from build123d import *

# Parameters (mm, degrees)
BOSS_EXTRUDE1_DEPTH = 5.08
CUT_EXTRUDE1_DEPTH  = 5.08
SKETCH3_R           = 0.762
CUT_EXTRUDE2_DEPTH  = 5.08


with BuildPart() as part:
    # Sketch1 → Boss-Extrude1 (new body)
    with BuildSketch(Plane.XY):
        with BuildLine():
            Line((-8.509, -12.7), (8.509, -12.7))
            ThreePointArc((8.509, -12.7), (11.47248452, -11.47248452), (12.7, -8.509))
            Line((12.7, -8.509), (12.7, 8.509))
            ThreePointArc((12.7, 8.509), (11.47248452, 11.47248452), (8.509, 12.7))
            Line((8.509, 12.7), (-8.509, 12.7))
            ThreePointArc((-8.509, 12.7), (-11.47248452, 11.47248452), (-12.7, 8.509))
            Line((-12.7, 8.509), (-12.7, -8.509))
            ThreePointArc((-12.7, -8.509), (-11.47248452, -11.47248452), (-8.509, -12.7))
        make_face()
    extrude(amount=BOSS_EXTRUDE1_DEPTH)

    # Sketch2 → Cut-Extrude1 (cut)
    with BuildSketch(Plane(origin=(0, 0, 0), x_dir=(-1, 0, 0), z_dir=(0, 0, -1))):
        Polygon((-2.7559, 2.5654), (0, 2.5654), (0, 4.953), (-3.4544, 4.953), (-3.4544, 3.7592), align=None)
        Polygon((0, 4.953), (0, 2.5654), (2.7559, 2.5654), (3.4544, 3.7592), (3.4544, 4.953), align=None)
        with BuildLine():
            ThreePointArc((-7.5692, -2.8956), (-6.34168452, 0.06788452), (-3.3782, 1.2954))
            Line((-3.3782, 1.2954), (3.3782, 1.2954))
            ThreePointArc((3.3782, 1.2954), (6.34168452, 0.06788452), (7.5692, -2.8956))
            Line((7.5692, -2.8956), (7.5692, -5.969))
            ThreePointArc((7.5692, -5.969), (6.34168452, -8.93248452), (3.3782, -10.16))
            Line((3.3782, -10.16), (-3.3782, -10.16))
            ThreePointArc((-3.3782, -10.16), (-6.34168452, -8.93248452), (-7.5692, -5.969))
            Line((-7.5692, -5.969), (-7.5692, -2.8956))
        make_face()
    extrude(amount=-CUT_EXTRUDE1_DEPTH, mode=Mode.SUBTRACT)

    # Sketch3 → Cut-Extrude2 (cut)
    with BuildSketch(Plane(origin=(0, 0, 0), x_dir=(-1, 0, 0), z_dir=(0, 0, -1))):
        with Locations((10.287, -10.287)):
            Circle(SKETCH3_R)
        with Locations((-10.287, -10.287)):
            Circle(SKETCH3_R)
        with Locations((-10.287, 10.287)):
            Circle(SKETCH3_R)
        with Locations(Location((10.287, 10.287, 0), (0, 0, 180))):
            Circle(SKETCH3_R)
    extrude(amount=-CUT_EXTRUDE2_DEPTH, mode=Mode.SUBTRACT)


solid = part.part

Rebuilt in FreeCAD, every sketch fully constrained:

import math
import FreeCAD as App
import Part
import Sketcher

V = App.Vector
Q = App.Units.Quantity

doc = App.newDocument("Part")
params = doc.addObject("Spreadsheet::Sheet", "Params")
for row, (alias, value) in enumerate([
    ("sketch1_radius", "0.165 in"),
    ("sketch1_width", "0.67 in"),
    ("pad1_length", "0.2 in"),
    ("sketch2_radius", "0.165 in"),
    ("sketch2_width", "0.217 in"),
    ("sketch2_width2", "0.272 in"),
    ("sketch2_width3", "0.266 in"),
    ("sketch2_height", "0.047 in"),
    ("pocket1_length", "0.2 in"),
    ("sketch3_diameter", "0.06 in"),
    ("pocket2_length", "0.2 in"),
], start=1):
    params.set(f"A{row}", alias)
    params.set(f"B{row}", "=" + value)
    params.setAlias(f"B{row}", alias)

body = doc.addObject("PartDesign::Body", "Body")

# Sketch on XY plane
sketch1 = doc.addObject("Sketcher::SketchObject", "Sketch")
body.addObject(sketch1)
sketch1.AttachmentSupport = (doc.XY_Plane, [""])
sketch1.MapMode = "FlatFace"
sketch1.addGeometry([
    Part.LineSegment(V(-8.5, -12.7, 0), V(8.5, -12.7, 0)),  # 0
    Part.ArcOfCircle(Part.Circle(V(8.5, -8.5, 0), V(0, 0, 1), 4.2), math.radians(-90), math.radians(0)),  # 1
    Part.LineSegment(V(12.7, -8.5, 0), V(12.7, 8.5, 0)),  # 2
    Part.ArcOfCircle(Part.Circle(V(8.5, 8.5, 0), V(0, 0, 1), 4.2), math.radians(0), math.radians(90)),  # 3
    Part.LineSegment(V(8.5, 12.7, 0), V(-8.5, 12.7, 0)),  # 4
    Part.ArcOfCircle(Part.Circle(V(-8.5, 8.5, 0), V(0, 0, 1), 4.2), math.radians(90), math.radians(180)),  # 5
    Part.LineSegment(V(-12.7, 8.5, 0), V(-12.7, -8.5, 0)),  # 6
    Part.ArcOfCircle(Part.Circle(V(-8.5, -8.5, 0), V(0, 0, 1), 4.2), math.radians(180), math.radians(270)),  # 7
], False)
sketch1.addConstraint([
    Sketcher.Constraint("Tangent", 0, 2, 1, 1),
    Sketcher.Constraint("Tangent", 1, 2, 2, 1),
    Sketcher.Constraint("Tangent", 2, 2, 3, 1),
    Sketcher.Constraint("Tangent", 3, 2, 4, 1),
    Sketcher.Constraint("Tangent", 4, 2, 5, 1),
    Sketcher.Constraint("Tangent", 5, 2, 6, 1),
    Sketcher.Constraint("Tangent", 6, 2, 7, 1),
    Sketcher.Constraint("Tangent", 7, 2, 0, 1),
    Sketcher.Constraint("Horizontal", 0),
    Sketcher.Constraint("Vertical", 2),
    Sketcher.Constraint("Horizontal", 4),
    Sketcher.Constraint("Vertical", 6),
    Sketcher.Constraint("Equal", 1, 3),
    Sketcher.Constraint("Equal", 3, 5),
    Sketcher.Constraint("Equal", 5, 7),
    Sketcher.Constraint("Symmetric", 1, 3, 5, 3, -1, 1),
    Sketcher.Constraint("Equal", 4, 2),
    Sketcher.Constraint("Radius", 1, Q("0.165 in")),
    Sketcher.Constraint("DistanceX", 0, 1, 0, 2, Q("0.67 in")),
])
sketch1.setExpression("Constraints[17]", "Params.sketch1_radius")
sketch1.setExpression("Constraints[18]", "Params.sketch1_width")
pad1 = doc.addObject("PartDesign::Pad", "Pad")
body.addObject(pad1)
pad1.Profile = sketch1
pad1.setExpression("Length", "Params.pad1_length")

# Sketch on XY plane
sketch2 = doc.addObject("Sketcher::SketchObject", "Sketch001")
body.addObject(sketch2)
sketch2.AttachmentSupport = (doc.XY_Plane, [""])
sketch2.MapMode = "FlatFace"
sketch2.addGeometry([
    Part.LineSegment(V(2.8, 2.6, 0), V(-2.8, 2.6, 0)),  # 0
    Part.LineSegment(V(-2.8, 2.6, 0), V(-3.5, 3.8, 0)),  # 1
    Part.LineSegment(V(-3.5, 3.8, 0), V(-3.5, 5, 0)),  # 2
    Part.LineSegment(V(-3.5, 5, 0), V(3.5, 5, 0)),  # 3
    Part.LineSegment(V(3.5, 5, 0), V(3.5, 3.8, 0)),  # 4
    Part.LineSegment(V(3.5, 3.8, 0), V(2.8, 2.6, 0)),  # 5
    Part.ArcOfCircle(Part.Circle(V(3.4, -2.9, 0), V(0, 0, 1), 4.2), math.radians(0), math.radians(90)),  # 6
    Part.LineSegment(V(7.6, -2.9, 0), V(7.6, -6, 0)),  # 7
    Part.ArcOfCircle(Part.Circle(V(3.4, -6, 0), V(0, 0, 1), 4.2), math.radians(-90), math.radians(0)),  # 8
    Part.LineSegment(V(3.4, -10.2, 0), V(-3.4, -10.2, 0)),  # 9
    Part.ArcOfCircle(Part.Circle(V(-3.4, -6, 0), V(0, 0, 1), 4.2), math.radians(180), math.radians(270)),  # 10
    Part.LineSegment(V(-7.6, -6, 0), V(-7.6, -2.9, 0)),  # 11
    Part.ArcOfCircle(Part.Circle(V(-3.4, -2.9, 0), V(0, 0, 1), 4.2), math.radians(90), math.radians(180)),  # 12
    Part.LineSegment(V(-3.4, 1.3, 0), V(3.4, 1.3, 0)),  # 13
], False)
sketch2.addConstraint([
    Sketcher.Constraint("Coincident", 0, 2, 1, 1),
    Sketcher.Constraint("Coincident", 1, 2, 2, 1),
    Sketcher.Constraint("Coincident", 2, 2, 3, 1),
    Sketcher.Constraint("Coincident", 3, 2, 4, 1),
    Sketcher.Constraint("Coincident", 4, 2, 5, 1),
    Sketcher.Constraint("Coincident", 5, 2, 0, 1),
    Sketcher.Constraint("Tangent", 6, 1, 7, 1),
    Sketcher.Constraint("Tangent", 7, 2, 8, 2),
    Sketcher.Constraint("Tangent", 8, 1, 9, 1),
    Sketcher.Constraint("Tangent", 9, 2, 10, 2),
    Sketcher.Constraint("Tangent", 10, 1, 11, 1),
    Sketcher.Constraint("Tangent", 11, 2, 12, 2),
    Sketcher.Constraint("Tangent", 12, 1, 13, 1),
    Sketcher.Constraint("Tangent", 13, 2, 6, 2),
    Sketcher.Constraint("Horizontal", 0),
    Sketcher.Constraint("Vertical", 2),
    Sketcher.Constraint("Horizontal", 3),
    Sketcher.Constraint("Vertical", 4),
    Sketcher.Constraint("Vertical", 7),
    Sketcher.Constraint("Horizontal", 9),
    Sketcher.Constraint("Vertical", 11),
    Sketcher.Constraint("Horizontal", 13),
    Sketcher.Constraint("Equal", 6, 8),
    Sketcher.Constraint("Equal", 8, 10),
    Sketcher.Constraint("Equal", 10, 12),
    Sketcher.Constraint("Symmetric", 1, 2, 4, 2, -2),
    Sketcher.Constraint("Equal", 1, 5),
    Sketcher.Constraint("Radius", 6, Q("0.165 in")),
    Sketcher.Constraint("DistanceY", 8, 1, -1, 1, Q("0.4 in")),
    Sketcher.Constraint("DistanceX", 0, 2, 0, 1, Q("0.217 in")),
    Sketcher.Constraint("DistanceX", 3, 1, 3, 2, Q("0.272 in")),
    Sketcher.Constraint("DistanceX", 9, 2, 9, 1, Q("0.266 in")),
    Sketcher.Constraint("DistanceY", 2, 1, 2, 2, Q("0.047 in")),
    Sketcher.Constraint("DistanceY", 7, 2, 7, 1, Q("0.121 in")),
    Sketcher.Constraint("DistanceY", 10, 3, 2, 2, Q("0.43 in")),
    Sketcher.Constraint("DistanceY", 12, 1, 0, 2, Q("0.05 in")),
    Sketcher.Constraint("DistanceX", -1, 1, 6, 3, Q("0.133 in")),
])
sketch2.setExpression("Constraints[27]", "Params.sketch2_radius")
sketch2.setExpression("Constraints[29]", "Params.sketch2_width")
sketch2.setExpression("Constraints[30]", "Params.sketch2_width2")
sketch2.setExpression("Constraints[31]", "Params.sketch2_width3")
sketch2.setExpression("Constraints[32]", "Params.sketch2_height")
pocket1 = doc.addObject("PartDesign::Pocket", "Pocket")
body.addObject(pocket1)
pocket1.Profile = sketch2
pocket1.setExpression("Length", "Params.pocket1_length")
pocket1.Reversed = True

# Sketch on XY plane
sketch3 = doc.addObject("Sketcher::SketchObject", "Sketch002")
body.addObject(sketch3)
sketch3.AttachmentSupport = (doc.XY_Plane, [""])
sketch3.MapMode = "FlatFace"
sketch3.addGeometry([
    Part.Circle(V(-10.3, -10.3, 0), V(0, 0, 1), 0.8),
    Part.Circle(V(10.3, -10.3, 0), V(0, 0, 1), 0.8),
    Part.Circle(V(10.3, 10.3, 0), V(0, 0, 1), 0.8),
    Part.Circle(V(-10.3, 10.3, 0), V(0, 0, 1), 0.8),
], False)
sketch3.addConstraint([
    Sketcher.Constraint("Equal", 0, 1),
    Sketcher.Constraint("Equal", 1, 2),
    Sketcher.Constraint("Equal", 2, 3),
    Sketcher.Constraint("Symmetric", 0, 3, 2, 3, -1, 1),
    Sketcher.Constraint("Symmetric", 1, 3, 3, 3, -1, 1),
    Sketcher.Constraint("Symmetric", 0, 3, 1, 3, -2),
    Sketcher.Constraint("Diameter", 0, Q("0.06 in")),
    Sketcher.Constraint("DistanceX", 0, 3, 1, 3, Q("0.81 in")),
    Sketcher.Constraint("DistanceY", 1, 3, 2, 3, Q("0.81 in")),
])
sketch3.setExpression("Constraints[6]", "Params.sketch3_diameter")
pocket2 = doc.addObject("PartDesign::Pocket", "Pocket001")
body.addObject(pocket2)
pocket2.Profile = sketch3
pocket2.setExpression("Length", "Params.pocket2_length")
pocket2.Reversed = True

doc.recompute()
